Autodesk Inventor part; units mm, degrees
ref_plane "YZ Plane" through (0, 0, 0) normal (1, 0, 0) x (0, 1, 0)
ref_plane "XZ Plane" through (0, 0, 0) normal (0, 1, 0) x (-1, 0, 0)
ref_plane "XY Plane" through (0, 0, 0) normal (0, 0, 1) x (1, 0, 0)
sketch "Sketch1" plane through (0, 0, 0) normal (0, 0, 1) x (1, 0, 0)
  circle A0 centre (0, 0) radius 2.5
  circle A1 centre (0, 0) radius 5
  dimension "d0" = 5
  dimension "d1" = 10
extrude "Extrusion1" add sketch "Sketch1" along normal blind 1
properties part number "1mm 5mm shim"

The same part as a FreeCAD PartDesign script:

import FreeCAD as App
import Part
import Sketcher

doc = App.newDocument("Part")
body = doc.addObject("PartDesign::Body", "Body")

sketch1 = body.newObject("Sketcher::SketchObject", "Sketch")
sketch1.AttachmentSupport = (doc.getObject("XY_Plane"), [""])
sketch1.MapMode = "FlatFace"
sketch1.addGeometry([
    Part.Circle(App.Vector(0, 0, 0), App.Vector(0, 0, 1), 5),
    Part.Circle(App.Vector(0, 0, 0), App.Vector(0, 0, 1), 2.5),
], False)
sketch1.addConstraint([
    Sketcher.Constraint("Coincident", 0, 3, -1, 1),
    Sketcher.Constraint("Coincident", 1, 3, -1, 1),
    Sketcher.Constraint("Diameter", 0, 10.0),
    Sketcher.Constraint("Diameter", 1, 5.0),
])
pad1 = body.newObject("PartDesign::Pad", "Pad")
pad1.Profile = sketch1
pad1.Length = 1

doc.recompute()
